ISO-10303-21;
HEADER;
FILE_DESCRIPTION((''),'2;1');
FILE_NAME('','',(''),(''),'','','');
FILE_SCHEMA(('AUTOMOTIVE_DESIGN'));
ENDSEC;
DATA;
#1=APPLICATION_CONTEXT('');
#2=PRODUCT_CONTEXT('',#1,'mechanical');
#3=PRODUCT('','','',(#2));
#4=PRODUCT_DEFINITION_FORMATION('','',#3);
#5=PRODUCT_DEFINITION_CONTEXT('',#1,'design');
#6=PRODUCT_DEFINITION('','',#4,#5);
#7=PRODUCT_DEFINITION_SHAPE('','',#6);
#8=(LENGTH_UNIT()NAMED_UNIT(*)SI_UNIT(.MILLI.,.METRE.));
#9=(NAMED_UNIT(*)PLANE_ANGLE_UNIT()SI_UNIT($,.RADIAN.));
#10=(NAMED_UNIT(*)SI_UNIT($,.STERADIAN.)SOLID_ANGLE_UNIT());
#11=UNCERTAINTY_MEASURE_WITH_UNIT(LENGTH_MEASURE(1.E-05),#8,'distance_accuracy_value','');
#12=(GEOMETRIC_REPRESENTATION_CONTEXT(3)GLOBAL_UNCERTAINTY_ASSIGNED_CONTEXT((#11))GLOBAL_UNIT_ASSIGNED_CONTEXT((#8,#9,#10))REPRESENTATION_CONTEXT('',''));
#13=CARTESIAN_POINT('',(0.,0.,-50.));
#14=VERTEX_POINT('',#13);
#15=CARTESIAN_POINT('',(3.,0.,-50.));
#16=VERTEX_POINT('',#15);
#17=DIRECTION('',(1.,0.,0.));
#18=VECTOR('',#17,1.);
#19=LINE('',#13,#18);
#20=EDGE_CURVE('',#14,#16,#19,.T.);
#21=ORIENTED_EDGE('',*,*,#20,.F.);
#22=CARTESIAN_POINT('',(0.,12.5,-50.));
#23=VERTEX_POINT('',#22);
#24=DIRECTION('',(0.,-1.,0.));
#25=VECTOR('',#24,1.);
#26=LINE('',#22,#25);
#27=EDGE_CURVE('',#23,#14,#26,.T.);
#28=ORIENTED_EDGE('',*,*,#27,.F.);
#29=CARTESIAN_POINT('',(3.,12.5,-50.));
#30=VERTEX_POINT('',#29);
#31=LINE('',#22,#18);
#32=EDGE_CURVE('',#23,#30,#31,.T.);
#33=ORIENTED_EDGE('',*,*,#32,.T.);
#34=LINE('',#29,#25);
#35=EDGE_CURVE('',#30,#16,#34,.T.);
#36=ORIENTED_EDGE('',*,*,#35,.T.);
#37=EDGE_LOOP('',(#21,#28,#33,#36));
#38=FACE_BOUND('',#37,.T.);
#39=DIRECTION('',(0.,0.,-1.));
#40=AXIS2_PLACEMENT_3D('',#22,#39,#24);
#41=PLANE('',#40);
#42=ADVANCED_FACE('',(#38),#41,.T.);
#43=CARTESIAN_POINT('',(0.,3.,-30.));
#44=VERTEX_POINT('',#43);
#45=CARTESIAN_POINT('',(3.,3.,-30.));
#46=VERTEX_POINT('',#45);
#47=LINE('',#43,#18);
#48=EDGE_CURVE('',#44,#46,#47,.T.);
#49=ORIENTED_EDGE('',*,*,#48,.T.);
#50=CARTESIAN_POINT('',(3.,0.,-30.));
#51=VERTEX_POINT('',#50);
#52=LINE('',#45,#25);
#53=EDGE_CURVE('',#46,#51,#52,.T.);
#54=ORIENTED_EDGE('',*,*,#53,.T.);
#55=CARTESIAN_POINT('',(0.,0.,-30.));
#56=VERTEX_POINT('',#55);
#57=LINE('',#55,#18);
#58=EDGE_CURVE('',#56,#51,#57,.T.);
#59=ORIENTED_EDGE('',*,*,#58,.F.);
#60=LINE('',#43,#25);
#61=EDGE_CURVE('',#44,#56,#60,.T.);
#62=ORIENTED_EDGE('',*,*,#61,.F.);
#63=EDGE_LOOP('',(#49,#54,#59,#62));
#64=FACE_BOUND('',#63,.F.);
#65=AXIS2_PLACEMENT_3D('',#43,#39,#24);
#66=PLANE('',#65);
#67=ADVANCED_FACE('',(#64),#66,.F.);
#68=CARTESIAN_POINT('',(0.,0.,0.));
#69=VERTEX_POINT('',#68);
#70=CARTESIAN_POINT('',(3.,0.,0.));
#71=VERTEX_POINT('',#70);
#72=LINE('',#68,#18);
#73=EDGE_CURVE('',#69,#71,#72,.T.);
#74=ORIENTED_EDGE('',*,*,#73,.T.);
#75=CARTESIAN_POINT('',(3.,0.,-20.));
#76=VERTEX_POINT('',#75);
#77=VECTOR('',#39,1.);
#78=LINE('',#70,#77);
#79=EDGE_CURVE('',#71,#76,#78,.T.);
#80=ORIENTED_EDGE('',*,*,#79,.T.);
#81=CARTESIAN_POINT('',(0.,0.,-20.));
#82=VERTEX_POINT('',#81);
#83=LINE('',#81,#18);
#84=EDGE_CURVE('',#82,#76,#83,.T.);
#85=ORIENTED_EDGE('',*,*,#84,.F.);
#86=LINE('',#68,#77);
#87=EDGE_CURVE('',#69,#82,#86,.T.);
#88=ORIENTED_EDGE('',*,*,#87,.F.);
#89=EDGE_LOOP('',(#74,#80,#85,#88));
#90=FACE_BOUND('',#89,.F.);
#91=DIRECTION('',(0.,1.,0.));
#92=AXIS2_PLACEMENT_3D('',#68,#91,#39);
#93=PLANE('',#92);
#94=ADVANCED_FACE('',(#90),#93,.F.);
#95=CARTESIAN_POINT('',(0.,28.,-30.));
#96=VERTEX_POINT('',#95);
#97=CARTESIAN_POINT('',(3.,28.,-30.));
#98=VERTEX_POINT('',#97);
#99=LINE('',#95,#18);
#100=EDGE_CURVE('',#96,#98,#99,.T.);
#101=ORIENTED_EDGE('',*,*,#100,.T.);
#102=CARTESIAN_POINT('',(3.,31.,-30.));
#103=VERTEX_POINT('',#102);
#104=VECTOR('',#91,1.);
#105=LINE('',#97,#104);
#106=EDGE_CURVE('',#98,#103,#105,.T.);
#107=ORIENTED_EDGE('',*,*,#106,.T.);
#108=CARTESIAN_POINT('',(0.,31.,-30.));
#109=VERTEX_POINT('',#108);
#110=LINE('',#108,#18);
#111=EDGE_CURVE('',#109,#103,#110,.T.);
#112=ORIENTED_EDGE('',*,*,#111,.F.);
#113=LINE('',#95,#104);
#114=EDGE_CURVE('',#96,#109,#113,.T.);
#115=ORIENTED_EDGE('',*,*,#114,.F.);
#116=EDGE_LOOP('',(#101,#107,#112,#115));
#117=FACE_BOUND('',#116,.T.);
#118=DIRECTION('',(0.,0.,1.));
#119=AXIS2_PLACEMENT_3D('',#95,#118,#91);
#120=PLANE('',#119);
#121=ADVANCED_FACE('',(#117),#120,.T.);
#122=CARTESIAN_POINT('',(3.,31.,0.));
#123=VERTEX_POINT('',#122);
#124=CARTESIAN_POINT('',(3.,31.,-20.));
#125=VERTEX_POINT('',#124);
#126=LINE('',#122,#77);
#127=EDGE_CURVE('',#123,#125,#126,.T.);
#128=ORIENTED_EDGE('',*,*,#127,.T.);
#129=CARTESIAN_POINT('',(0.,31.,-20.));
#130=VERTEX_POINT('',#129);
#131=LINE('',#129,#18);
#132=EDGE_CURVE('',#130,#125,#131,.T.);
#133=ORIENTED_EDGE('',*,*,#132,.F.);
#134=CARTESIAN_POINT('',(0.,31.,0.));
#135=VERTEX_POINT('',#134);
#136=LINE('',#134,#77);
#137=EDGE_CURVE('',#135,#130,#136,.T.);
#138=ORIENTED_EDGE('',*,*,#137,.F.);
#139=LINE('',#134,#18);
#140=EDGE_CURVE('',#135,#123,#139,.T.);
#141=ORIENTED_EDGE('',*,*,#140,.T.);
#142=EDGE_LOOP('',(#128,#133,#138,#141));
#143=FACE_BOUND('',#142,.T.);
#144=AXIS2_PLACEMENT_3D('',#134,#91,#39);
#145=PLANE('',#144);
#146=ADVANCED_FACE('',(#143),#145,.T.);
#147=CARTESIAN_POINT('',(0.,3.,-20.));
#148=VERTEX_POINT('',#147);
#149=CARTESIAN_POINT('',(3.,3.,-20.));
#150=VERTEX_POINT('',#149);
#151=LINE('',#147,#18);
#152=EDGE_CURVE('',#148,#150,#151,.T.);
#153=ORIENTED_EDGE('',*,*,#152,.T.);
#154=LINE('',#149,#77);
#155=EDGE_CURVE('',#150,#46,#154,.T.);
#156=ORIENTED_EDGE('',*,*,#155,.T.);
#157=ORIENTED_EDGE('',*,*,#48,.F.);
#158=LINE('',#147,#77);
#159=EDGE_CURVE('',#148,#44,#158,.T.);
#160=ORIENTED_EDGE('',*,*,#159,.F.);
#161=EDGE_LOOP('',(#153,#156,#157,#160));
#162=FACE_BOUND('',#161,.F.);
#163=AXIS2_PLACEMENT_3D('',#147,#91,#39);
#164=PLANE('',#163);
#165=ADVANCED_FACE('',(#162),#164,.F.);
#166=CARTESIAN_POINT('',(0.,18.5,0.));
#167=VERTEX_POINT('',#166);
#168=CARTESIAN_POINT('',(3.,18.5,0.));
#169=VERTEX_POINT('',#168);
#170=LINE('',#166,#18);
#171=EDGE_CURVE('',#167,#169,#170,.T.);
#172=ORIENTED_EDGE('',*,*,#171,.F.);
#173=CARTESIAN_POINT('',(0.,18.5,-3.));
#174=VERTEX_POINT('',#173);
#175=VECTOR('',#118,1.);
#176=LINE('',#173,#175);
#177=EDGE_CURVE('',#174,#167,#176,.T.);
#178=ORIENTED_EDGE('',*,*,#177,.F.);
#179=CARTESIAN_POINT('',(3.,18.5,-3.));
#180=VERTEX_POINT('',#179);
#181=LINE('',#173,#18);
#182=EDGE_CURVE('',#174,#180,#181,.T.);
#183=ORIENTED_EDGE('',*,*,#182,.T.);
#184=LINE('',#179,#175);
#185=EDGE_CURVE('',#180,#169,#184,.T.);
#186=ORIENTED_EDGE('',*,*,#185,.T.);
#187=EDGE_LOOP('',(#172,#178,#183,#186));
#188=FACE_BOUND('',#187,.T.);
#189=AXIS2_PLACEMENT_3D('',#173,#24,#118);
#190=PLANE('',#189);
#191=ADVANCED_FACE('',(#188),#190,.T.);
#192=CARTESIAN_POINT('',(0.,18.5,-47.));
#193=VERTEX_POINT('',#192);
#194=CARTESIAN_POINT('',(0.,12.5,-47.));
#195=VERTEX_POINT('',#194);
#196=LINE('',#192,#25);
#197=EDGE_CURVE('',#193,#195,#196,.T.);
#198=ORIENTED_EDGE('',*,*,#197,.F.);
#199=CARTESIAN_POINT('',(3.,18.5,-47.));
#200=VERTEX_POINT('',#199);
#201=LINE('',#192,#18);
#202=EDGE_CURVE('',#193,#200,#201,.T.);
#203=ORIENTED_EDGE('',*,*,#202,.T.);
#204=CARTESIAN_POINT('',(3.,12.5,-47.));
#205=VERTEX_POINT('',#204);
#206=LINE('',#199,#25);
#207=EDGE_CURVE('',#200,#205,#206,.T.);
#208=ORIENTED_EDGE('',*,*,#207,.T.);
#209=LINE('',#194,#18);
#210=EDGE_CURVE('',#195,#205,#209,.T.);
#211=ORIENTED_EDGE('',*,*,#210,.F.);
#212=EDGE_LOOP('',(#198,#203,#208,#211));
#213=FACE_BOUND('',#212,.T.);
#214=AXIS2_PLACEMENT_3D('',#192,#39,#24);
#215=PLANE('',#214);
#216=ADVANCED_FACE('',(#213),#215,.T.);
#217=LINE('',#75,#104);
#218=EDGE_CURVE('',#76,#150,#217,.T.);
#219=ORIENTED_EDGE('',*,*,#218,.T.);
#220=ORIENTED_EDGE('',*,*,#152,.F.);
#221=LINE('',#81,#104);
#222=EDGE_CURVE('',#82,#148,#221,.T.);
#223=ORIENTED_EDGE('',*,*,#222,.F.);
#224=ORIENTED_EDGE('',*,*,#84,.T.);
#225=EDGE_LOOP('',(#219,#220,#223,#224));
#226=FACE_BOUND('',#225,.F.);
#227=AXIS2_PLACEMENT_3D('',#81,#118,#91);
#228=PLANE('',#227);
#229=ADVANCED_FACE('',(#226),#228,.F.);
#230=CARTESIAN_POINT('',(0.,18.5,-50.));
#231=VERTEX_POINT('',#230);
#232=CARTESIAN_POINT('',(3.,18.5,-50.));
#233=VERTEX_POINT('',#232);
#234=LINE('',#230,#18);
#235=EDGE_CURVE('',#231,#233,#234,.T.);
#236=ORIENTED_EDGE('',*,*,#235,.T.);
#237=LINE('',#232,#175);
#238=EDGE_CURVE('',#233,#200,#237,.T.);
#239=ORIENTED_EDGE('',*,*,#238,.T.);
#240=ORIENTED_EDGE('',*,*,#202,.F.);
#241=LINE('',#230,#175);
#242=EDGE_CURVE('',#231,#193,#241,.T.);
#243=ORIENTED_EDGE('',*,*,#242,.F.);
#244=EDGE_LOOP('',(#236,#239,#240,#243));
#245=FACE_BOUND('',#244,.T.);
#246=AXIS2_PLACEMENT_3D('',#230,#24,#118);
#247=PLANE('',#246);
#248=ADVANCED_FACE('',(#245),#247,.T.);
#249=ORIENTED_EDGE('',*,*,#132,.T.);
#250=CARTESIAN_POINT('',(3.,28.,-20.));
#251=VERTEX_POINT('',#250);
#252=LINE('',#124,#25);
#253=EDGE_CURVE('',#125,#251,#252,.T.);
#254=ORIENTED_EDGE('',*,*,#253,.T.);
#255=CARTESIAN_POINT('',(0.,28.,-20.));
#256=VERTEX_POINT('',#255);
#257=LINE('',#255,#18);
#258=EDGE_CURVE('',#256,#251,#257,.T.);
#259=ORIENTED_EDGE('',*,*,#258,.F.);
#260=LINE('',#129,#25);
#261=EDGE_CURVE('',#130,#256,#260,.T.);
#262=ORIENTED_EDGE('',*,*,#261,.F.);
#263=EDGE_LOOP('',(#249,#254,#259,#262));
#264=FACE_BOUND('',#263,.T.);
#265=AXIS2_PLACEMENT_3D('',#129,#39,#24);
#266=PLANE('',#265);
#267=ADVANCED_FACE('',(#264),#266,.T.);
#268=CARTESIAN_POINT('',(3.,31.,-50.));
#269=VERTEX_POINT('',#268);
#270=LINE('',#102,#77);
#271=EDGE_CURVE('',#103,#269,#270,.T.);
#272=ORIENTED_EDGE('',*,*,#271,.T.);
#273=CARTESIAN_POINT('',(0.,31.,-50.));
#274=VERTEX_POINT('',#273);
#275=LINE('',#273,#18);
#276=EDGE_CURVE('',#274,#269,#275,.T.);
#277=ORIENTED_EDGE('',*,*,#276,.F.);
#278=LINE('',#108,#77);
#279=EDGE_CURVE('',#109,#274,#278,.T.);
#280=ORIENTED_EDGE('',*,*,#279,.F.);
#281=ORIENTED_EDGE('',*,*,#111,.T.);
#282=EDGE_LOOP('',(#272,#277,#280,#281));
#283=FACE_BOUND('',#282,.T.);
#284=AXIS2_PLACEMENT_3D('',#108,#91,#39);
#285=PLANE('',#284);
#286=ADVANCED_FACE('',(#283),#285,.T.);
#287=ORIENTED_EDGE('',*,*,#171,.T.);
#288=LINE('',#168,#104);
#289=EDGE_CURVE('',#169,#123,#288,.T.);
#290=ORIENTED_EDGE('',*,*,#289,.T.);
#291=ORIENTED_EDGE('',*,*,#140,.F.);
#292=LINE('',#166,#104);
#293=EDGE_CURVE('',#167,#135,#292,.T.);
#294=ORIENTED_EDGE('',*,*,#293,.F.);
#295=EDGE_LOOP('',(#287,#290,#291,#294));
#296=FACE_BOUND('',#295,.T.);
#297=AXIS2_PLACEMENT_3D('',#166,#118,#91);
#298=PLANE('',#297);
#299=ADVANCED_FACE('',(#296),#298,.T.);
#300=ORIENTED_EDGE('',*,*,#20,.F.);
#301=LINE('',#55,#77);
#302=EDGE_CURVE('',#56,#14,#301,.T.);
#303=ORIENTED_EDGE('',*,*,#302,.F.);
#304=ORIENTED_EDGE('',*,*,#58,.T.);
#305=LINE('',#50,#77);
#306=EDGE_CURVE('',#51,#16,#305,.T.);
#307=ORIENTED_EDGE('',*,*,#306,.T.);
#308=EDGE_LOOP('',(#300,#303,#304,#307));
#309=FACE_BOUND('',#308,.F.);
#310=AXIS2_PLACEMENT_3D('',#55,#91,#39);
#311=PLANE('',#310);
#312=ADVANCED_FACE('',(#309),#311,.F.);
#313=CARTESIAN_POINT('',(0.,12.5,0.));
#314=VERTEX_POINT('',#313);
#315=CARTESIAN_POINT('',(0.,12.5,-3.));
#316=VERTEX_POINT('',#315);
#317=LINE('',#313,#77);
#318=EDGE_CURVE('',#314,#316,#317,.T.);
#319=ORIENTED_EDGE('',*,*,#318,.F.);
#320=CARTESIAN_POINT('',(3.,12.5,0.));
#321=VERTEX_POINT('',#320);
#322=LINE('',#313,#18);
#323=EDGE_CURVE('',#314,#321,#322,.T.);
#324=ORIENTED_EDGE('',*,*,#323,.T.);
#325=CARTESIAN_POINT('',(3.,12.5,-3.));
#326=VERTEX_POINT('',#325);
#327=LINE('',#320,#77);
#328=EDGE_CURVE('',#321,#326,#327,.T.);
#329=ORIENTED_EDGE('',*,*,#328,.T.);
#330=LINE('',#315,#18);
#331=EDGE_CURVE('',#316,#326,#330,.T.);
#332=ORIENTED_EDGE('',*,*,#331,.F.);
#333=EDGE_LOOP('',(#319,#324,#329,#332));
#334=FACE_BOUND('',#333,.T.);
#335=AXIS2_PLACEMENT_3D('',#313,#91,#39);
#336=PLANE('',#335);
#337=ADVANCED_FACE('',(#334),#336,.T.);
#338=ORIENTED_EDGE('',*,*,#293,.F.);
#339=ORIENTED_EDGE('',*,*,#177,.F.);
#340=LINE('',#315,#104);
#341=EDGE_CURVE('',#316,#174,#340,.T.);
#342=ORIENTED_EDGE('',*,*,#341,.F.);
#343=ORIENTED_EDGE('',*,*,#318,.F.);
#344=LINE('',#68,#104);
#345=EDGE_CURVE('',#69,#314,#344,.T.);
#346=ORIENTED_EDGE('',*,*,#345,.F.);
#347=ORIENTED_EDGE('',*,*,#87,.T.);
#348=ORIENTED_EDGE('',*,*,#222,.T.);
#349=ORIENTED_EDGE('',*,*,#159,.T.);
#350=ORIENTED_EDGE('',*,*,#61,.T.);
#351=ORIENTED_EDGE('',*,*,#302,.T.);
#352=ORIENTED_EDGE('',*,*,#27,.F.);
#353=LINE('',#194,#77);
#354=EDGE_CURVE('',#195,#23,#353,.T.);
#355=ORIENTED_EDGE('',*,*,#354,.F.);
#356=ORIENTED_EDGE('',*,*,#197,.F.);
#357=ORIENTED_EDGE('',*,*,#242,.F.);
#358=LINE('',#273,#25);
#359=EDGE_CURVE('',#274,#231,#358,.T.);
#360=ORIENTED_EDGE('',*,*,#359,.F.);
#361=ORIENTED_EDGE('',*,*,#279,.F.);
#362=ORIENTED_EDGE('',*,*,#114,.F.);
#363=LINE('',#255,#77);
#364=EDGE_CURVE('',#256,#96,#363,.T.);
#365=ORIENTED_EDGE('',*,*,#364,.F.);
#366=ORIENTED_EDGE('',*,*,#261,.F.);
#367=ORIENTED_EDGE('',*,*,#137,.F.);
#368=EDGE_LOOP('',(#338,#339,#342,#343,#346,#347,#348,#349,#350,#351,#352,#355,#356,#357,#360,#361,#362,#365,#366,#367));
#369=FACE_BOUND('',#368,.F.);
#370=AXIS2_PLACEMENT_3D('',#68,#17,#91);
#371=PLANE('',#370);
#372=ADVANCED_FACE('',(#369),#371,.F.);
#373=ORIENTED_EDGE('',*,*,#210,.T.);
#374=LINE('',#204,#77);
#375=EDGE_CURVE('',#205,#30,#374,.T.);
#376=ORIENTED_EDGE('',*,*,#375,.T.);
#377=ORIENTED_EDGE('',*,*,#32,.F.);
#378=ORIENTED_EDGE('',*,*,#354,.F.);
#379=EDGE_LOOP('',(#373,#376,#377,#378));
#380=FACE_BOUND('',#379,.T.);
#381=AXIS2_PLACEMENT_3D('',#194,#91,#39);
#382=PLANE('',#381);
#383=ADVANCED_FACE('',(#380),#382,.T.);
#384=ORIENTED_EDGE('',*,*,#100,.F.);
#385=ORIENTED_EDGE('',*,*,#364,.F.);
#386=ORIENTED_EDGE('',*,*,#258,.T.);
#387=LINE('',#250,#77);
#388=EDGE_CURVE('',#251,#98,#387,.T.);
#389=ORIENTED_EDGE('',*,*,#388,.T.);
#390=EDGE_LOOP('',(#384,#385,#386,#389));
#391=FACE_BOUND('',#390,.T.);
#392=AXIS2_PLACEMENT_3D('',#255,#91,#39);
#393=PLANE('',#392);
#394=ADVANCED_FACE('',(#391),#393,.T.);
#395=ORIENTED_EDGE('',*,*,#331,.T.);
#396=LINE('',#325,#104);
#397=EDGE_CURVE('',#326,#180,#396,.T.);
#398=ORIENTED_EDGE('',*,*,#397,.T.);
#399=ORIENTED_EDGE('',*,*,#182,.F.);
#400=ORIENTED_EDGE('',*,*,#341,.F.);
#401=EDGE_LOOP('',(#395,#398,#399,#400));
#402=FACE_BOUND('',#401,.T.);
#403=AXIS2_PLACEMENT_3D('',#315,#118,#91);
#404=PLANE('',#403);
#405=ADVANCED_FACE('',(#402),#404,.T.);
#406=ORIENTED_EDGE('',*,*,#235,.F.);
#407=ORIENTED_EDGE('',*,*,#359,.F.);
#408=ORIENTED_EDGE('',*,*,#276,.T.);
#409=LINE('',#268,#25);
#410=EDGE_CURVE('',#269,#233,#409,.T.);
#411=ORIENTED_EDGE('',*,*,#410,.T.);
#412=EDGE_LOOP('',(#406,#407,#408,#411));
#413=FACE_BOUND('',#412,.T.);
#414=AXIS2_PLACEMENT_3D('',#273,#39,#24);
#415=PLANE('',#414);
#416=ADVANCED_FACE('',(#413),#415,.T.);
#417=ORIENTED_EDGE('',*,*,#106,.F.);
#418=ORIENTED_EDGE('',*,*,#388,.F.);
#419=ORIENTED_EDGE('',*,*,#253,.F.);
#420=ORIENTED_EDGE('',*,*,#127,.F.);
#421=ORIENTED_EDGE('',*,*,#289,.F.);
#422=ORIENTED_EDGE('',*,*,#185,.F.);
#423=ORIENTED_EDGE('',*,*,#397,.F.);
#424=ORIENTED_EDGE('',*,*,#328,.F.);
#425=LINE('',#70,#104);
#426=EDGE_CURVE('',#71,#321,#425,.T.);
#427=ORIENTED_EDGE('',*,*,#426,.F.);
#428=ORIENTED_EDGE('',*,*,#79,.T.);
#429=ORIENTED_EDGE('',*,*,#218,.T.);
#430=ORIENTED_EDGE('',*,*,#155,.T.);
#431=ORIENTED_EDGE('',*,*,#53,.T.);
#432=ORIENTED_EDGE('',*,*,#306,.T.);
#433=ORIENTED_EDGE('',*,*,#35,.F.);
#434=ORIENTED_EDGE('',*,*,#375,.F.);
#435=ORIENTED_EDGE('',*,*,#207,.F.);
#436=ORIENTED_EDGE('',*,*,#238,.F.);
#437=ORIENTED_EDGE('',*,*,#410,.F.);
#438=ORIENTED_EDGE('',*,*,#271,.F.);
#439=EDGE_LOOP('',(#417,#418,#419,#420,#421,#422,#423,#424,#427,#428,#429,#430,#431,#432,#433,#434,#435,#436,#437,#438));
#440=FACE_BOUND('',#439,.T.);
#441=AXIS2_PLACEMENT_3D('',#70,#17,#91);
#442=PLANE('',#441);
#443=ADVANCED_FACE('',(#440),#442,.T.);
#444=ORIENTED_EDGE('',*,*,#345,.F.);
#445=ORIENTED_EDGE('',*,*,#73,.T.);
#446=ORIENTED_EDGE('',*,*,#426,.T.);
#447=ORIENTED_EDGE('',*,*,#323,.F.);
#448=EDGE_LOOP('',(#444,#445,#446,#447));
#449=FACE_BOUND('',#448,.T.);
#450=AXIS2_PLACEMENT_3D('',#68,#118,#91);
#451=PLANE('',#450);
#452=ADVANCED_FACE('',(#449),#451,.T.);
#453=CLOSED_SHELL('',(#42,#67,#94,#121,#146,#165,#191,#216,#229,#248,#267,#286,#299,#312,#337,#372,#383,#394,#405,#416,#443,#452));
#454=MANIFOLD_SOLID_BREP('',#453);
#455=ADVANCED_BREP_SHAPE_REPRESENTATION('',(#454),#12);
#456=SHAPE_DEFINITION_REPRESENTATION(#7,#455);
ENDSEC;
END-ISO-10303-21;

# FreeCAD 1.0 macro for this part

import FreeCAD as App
import Part
import Sketcher
Q = App.Units.Quantity

doc = App.newDocument("Part")
body = doc.addObject("PartDesign::Body", "Body")

# Sketch on YZ plane
sketch1 = body.newObject("Sketcher::SketchObject", "Sketch")
sketch1.AttachmentSupport = (doc.getObject("YZ_Plane"), [""])
sketch1.MapMode = "FlatFace"
sketch1.addGeometry([
    Part.LineSegment(App.Vector(12.5, 0, 0), App.Vector(0, 0, 0)),  # 0
    Part.LineSegment(App.Vector(0, 0, 0), App.Vector(0, -20, 0)),  # 1
    Part.LineSegment(App.Vector(0, -20, 0), App.Vector(3, -20, 0)),  # 2
    Part.LineSegment(App.Vector(3, -20, 0), App.Vector(3, -30, 0)),  # 3
    Part.LineSegment(App.Vector(3, -30, 0), App.Vector(0, -30, 0)),  # 4
    Part.LineSegment(App.Vector(0, -30, 0), App.Vector(0, -50, 0)),  # 5
    Part.LineSegment(App.Vector(0, -50, 0), App.Vector(12.5, -50, 0)),  # 6
    Part.LineSegment(App.Vector(12.5, -50, 0), App.Vector(12.5, -47, 0)),  # 7
    Part.LineSegment(App.Vector(12.5, -47, 0), App.Vector(18.5, -47, 0)),  # 8
    Part.LineSegment(App.Vector(18.5, -47, 0), App.Vector(18.5, -50, 0)),  # 9
    Part.LineSegment(App.Vector(18.5, -50, 0), App.Vector(31, -50, 0)),  # 10
    Part.LineSegment(App.Vector(31, -50, 0), App.Vector(31, -30, 0)),  # 11
    Part.LineSegment(App.Vector(31, -30, 0), App.Vector(28, -30, 0)),  # 12
    Part.LineSegment(App.Vector(28, -30, 0), App.Vector(28, -20, 0)),  # 13
    Part.LineSegment(App.Vector(28, -20, 0), App.Vector(31, -20, 0)),  # 14
    Part.LineSegment(App.Vector(31, -20, 0), App.Vector(31, 0, 0)),  # 15
    Part.LineSegment(App.Vector(31, 0, 0), App.Vector(18.5, 0, 0)),  # 16
    Part.LineSegment(App.Vector(18.5, 0, 0), App.Vector(18.5, -3, 0)),  # 17
    Part.LineSegment(App.Vector(18.5, -3, 0), App.Vector(12.5, -3, 0)),  # 18
    Part.LineSegment(App.Vector(12.5, -3, 0), App.Vector(12.5, 0, 0)),  # 19
], False)
sketch1.addConstraint([
    Sketcher.Constraint("Coincident", 0, 2, 1, 1),
    Sketcher.Constraint("Coincident", 1, 2, 2, 1),
    Sketcher.Constraint("Coincident", 2, 2, 3, 1),
    Sketcher.Constraint("Coincident", 3, 2, 4, 1),
    Sketcher.Constraint("Coincident", 4, 2, 5, 1),
    Sketcher.Constraint("Coincident", 5, 2, 6, 1),
    Sketcher.Constraint("Coincident", 6, 2, 7, 1),
    Sketcher.Constraint("Coincident", 7, 2, 8, 1),
    Sketcher.Constraint("Coincident", 8, 2, 9, 1),
    Sketcher.Constraint("Coincident", 9, 2, 10, 1),
    Sketcher.Constraint("Coincident", 10, 2, 11, 1),
    Sketcher.Constraint("Coincident", 11, 2, 12, 1),
    Sketcher.Constraint("Coincident", 12, 2, 13, 1),
    Sketcher.Constraint("Coincident", 13, 2, 14, 1),
    Sketcher.Constraint("Coincident", 14, 2, 15, 1),
    Sketcher.Constraint("Coincident", 15, 2, 16, 1),
    Sketcher.Constraint("Coincident", 16, 2, 17, 1),
    Sketcher.Constraint("Coincident", 17, 2, 18, 1),
    Sketcher.Constraint("Coincident", 18, 2, 19, 1),
    Sketcher.Constraint("Coincident", 19, 2, 0, 1),
    Sketcher.Constraint("Horizontal", 0),
    Sketcher.Constraint("Vertical", 1),
    Sketcher.Constraint("Horizontal", 2),
    Sketcher.Constraint("Vertical", 3),
    Sketcher.Constraint("Horizontal", 4),
    Sketcher.Constraint("Vertical", 5),
    Sketcher.Constraint("Horizontal", 6),
    Sketcher.Constraint("Vertical", 7),
    Sketcher.Constraint("Horizontal", 8),
    Sketcher.Constraint("Vertical", 9),
    Sketcher.Constraint("Horizontal", 10),
    Sketcher.Constraint("Vertical", 11),
    Sketcher.Constraint("Horizontal", 12),
    Sketcher.Constraint("Vertical", 13),
    Sketcher.Constraint("Horizontal", 14),
    Sketcher.Constraint("Vertical", 15),
    Sketcher.Constraint("Horizontal", 16),
    Sketcher.Constraint("Vertical", 17),
    Sketcher.Constraint("Horizontal", 18),
    Sketcher.Constraint("Vertical", 19),
    Sketcher.Constraint("Coincident", 0, 2, -1, 1),
    Sketcher.Constraint("PointOnObject", 4, 2, -2),
    Sketcher.Constraint("PointOnObject", 15, 2, -1),
    Sketcher.Constraint("Horizontal", 6, 2, 9, 2),
    Sketcher.Constraint("Horizontal", 4, 2, 11, 2),
    Sketcher.Constraint("Horizontal", 2, 2, 13, 2),
    Sketcher.Constraint("Vertical", 11, 2, 14, 2),
    Sketcher.Constraint("Vertical", 9, 2, 16, 2),
    Sketcher.Constraint("Vertical", 7, 2, 18, 2),
    Sketcher.Constraint("Equal", 6, 10),
    Sketcher.Constraint("Equal", 4, 12),
    Sketcher.Constraint("Equal", 1, 5),
    Sketcher.Constraint("Equal", 14, 7),
    Sketcher.Constraint("Equal", 9, 17),
    Sketcher.Constraint("DistanceX", 2, 1, 2, 2, Q("3 mm")),
    Sketcher.Constraint("DistanceX", 8, 1, 8, 2, Q("6 mm")),
    Sketcher.Constraint("DistanceY", 3, 2, 3, 1, Q("10 mm")),
    Sketcher.Constraint("DistanceY", 5, 2, -1, 1, Q("50 mm")),
    Sketcher.Constraint("DistanceX", 2, 2, 13, 2, Q("25 mm")),
])
pad1 = body.newObject("PartDesign::Pad", "Pad")
pad1.Profile = sketch1
pad1.Length = 3

doc.recompute()
